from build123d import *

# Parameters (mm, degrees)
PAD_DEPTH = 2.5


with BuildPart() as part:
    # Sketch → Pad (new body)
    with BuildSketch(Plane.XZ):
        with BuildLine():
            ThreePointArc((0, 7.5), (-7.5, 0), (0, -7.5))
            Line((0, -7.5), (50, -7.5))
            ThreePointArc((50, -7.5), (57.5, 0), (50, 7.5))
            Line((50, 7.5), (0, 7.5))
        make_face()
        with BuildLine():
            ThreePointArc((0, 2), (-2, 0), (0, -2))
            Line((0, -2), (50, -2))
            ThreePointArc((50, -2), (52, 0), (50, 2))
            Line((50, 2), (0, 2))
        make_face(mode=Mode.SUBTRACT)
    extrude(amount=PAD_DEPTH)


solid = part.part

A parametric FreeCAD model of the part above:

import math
import FreeCAD as App
import Part
import Sketcher

V = App.Vector

doc = App.newDocument("Part")
body = doc.addObject("PartDesign::Body", "Body")

# Sketch on XZ plane
sketch1 = doc.addObject("Sketcher::SketchObject", "Sketch")
body.addObject(sketch1)
sketch1.AttachmentSupport = (doc.XZ_Plane, [""])
sketch1.MapMode = "FlatFace"
sketch1.addGeometry(Part.ArcOfCircle(Part.Circle(V(0, 0, 0), V(0, 0, 1), 7.5), math.radians(90), math.radians(270)), False)
sketch1.addGeometry(Part.LineSegment(V(0, -7.5, 0), V(50, -7.5, 0)), False)
sketch1.addGeometry(Part.ArcOfCircle(Part.Circle(V(50, 0, 0), V(0, 0, 1), 7.5), math.radians(-90), math.radians(90)), False)
sketch1.addGeometry(Part.LineSegment(V(50, 7.5, 0), V(0, 7.5, 0)), False)
sketch1.addGeometry(Part.ArcOfCircle(Part.Circle(V(0, 0, 0), V(0, 0, 1), 2), math.radians(90), math.radians(270)), False)
sketch1.addGeometry(Part.LineSegment(V(0, 2, 0), V(50, 2, 0)), False)
sketch1.addGeometry(Part.ArcOfCircle(Part.Circle(V(50, 0, 0), V(0, 0, 1), 2), math.radians(-90), math.radians(90)), False)
sketch1.addGeometry(Part.LineSegment(V(50, -2, 0), V(0, -2, 0)), False)
sketch1.addConstraint(Sketcher.Constraint("Tangent", 0, 2, 1, 1))
sketch1.addConstraint(Sketcher.Constraint("Tangent", 1, 2, 2, 1))
sketch1.addConstraint(Sketcher.Constraint("Tangent", 2, 2, 3, 1))
sketch1.addConstraint(Sketcher.Constraint("Tangent", 3, 2, 0, 1))
sketch1.addConstraint(Sketcher.Constraint("Tangent", 4, 1, 5, 1))
sketch1.addConstraint(Sketcher.Constraint("Tangent", 5, 2, 6, 2))
sketch1.addConstraint(Sketcher.Constraint("Tangent", 6, 1, 7, 1))
sketch1.addConstraint(Sketcher.Constraint("Tangent", 7, 2, 4, 2))
sketch1.addConstraint(Sketcher.Constraint("Horizontal", 1))
sketch1.addConstraint(Sketcher.Constraint("Horizontal", 3))
sketch1.addConstraint(Sketcher.Constraint("Horizontal", 5))
sketch1.addConstraint(Sketcher.Constraint("Horizontal", 7))
sketch1.addConstraint(Sketcher.Constraint("Coincident", 0, 3, -1, 1))
sketch1.addConstraint(Sketcher.Constraint("Coincident", 4, 3, -1, 1))
sketch1.addConstraint(Sketcher.Constraint("Vertical", 6, 3, 1, 2))
sketch1.addConstraint(Sketcher.Constraint("Radius", 4, 2.0))
sketch1.addConstraint(Sketcher.Constraint("Radius", 0, 7.5))
sketch1.addConstraint(Sketcher.Constraint("DistanceX", 1, 1, 1, 2, 50.0))
pad1 = doc.addObject("PartDesign::Pad", "Pad")
body.addObject(pad1)
pad1.Profile = sketch1
pad1.Length = 2.5

doc.recompute()
